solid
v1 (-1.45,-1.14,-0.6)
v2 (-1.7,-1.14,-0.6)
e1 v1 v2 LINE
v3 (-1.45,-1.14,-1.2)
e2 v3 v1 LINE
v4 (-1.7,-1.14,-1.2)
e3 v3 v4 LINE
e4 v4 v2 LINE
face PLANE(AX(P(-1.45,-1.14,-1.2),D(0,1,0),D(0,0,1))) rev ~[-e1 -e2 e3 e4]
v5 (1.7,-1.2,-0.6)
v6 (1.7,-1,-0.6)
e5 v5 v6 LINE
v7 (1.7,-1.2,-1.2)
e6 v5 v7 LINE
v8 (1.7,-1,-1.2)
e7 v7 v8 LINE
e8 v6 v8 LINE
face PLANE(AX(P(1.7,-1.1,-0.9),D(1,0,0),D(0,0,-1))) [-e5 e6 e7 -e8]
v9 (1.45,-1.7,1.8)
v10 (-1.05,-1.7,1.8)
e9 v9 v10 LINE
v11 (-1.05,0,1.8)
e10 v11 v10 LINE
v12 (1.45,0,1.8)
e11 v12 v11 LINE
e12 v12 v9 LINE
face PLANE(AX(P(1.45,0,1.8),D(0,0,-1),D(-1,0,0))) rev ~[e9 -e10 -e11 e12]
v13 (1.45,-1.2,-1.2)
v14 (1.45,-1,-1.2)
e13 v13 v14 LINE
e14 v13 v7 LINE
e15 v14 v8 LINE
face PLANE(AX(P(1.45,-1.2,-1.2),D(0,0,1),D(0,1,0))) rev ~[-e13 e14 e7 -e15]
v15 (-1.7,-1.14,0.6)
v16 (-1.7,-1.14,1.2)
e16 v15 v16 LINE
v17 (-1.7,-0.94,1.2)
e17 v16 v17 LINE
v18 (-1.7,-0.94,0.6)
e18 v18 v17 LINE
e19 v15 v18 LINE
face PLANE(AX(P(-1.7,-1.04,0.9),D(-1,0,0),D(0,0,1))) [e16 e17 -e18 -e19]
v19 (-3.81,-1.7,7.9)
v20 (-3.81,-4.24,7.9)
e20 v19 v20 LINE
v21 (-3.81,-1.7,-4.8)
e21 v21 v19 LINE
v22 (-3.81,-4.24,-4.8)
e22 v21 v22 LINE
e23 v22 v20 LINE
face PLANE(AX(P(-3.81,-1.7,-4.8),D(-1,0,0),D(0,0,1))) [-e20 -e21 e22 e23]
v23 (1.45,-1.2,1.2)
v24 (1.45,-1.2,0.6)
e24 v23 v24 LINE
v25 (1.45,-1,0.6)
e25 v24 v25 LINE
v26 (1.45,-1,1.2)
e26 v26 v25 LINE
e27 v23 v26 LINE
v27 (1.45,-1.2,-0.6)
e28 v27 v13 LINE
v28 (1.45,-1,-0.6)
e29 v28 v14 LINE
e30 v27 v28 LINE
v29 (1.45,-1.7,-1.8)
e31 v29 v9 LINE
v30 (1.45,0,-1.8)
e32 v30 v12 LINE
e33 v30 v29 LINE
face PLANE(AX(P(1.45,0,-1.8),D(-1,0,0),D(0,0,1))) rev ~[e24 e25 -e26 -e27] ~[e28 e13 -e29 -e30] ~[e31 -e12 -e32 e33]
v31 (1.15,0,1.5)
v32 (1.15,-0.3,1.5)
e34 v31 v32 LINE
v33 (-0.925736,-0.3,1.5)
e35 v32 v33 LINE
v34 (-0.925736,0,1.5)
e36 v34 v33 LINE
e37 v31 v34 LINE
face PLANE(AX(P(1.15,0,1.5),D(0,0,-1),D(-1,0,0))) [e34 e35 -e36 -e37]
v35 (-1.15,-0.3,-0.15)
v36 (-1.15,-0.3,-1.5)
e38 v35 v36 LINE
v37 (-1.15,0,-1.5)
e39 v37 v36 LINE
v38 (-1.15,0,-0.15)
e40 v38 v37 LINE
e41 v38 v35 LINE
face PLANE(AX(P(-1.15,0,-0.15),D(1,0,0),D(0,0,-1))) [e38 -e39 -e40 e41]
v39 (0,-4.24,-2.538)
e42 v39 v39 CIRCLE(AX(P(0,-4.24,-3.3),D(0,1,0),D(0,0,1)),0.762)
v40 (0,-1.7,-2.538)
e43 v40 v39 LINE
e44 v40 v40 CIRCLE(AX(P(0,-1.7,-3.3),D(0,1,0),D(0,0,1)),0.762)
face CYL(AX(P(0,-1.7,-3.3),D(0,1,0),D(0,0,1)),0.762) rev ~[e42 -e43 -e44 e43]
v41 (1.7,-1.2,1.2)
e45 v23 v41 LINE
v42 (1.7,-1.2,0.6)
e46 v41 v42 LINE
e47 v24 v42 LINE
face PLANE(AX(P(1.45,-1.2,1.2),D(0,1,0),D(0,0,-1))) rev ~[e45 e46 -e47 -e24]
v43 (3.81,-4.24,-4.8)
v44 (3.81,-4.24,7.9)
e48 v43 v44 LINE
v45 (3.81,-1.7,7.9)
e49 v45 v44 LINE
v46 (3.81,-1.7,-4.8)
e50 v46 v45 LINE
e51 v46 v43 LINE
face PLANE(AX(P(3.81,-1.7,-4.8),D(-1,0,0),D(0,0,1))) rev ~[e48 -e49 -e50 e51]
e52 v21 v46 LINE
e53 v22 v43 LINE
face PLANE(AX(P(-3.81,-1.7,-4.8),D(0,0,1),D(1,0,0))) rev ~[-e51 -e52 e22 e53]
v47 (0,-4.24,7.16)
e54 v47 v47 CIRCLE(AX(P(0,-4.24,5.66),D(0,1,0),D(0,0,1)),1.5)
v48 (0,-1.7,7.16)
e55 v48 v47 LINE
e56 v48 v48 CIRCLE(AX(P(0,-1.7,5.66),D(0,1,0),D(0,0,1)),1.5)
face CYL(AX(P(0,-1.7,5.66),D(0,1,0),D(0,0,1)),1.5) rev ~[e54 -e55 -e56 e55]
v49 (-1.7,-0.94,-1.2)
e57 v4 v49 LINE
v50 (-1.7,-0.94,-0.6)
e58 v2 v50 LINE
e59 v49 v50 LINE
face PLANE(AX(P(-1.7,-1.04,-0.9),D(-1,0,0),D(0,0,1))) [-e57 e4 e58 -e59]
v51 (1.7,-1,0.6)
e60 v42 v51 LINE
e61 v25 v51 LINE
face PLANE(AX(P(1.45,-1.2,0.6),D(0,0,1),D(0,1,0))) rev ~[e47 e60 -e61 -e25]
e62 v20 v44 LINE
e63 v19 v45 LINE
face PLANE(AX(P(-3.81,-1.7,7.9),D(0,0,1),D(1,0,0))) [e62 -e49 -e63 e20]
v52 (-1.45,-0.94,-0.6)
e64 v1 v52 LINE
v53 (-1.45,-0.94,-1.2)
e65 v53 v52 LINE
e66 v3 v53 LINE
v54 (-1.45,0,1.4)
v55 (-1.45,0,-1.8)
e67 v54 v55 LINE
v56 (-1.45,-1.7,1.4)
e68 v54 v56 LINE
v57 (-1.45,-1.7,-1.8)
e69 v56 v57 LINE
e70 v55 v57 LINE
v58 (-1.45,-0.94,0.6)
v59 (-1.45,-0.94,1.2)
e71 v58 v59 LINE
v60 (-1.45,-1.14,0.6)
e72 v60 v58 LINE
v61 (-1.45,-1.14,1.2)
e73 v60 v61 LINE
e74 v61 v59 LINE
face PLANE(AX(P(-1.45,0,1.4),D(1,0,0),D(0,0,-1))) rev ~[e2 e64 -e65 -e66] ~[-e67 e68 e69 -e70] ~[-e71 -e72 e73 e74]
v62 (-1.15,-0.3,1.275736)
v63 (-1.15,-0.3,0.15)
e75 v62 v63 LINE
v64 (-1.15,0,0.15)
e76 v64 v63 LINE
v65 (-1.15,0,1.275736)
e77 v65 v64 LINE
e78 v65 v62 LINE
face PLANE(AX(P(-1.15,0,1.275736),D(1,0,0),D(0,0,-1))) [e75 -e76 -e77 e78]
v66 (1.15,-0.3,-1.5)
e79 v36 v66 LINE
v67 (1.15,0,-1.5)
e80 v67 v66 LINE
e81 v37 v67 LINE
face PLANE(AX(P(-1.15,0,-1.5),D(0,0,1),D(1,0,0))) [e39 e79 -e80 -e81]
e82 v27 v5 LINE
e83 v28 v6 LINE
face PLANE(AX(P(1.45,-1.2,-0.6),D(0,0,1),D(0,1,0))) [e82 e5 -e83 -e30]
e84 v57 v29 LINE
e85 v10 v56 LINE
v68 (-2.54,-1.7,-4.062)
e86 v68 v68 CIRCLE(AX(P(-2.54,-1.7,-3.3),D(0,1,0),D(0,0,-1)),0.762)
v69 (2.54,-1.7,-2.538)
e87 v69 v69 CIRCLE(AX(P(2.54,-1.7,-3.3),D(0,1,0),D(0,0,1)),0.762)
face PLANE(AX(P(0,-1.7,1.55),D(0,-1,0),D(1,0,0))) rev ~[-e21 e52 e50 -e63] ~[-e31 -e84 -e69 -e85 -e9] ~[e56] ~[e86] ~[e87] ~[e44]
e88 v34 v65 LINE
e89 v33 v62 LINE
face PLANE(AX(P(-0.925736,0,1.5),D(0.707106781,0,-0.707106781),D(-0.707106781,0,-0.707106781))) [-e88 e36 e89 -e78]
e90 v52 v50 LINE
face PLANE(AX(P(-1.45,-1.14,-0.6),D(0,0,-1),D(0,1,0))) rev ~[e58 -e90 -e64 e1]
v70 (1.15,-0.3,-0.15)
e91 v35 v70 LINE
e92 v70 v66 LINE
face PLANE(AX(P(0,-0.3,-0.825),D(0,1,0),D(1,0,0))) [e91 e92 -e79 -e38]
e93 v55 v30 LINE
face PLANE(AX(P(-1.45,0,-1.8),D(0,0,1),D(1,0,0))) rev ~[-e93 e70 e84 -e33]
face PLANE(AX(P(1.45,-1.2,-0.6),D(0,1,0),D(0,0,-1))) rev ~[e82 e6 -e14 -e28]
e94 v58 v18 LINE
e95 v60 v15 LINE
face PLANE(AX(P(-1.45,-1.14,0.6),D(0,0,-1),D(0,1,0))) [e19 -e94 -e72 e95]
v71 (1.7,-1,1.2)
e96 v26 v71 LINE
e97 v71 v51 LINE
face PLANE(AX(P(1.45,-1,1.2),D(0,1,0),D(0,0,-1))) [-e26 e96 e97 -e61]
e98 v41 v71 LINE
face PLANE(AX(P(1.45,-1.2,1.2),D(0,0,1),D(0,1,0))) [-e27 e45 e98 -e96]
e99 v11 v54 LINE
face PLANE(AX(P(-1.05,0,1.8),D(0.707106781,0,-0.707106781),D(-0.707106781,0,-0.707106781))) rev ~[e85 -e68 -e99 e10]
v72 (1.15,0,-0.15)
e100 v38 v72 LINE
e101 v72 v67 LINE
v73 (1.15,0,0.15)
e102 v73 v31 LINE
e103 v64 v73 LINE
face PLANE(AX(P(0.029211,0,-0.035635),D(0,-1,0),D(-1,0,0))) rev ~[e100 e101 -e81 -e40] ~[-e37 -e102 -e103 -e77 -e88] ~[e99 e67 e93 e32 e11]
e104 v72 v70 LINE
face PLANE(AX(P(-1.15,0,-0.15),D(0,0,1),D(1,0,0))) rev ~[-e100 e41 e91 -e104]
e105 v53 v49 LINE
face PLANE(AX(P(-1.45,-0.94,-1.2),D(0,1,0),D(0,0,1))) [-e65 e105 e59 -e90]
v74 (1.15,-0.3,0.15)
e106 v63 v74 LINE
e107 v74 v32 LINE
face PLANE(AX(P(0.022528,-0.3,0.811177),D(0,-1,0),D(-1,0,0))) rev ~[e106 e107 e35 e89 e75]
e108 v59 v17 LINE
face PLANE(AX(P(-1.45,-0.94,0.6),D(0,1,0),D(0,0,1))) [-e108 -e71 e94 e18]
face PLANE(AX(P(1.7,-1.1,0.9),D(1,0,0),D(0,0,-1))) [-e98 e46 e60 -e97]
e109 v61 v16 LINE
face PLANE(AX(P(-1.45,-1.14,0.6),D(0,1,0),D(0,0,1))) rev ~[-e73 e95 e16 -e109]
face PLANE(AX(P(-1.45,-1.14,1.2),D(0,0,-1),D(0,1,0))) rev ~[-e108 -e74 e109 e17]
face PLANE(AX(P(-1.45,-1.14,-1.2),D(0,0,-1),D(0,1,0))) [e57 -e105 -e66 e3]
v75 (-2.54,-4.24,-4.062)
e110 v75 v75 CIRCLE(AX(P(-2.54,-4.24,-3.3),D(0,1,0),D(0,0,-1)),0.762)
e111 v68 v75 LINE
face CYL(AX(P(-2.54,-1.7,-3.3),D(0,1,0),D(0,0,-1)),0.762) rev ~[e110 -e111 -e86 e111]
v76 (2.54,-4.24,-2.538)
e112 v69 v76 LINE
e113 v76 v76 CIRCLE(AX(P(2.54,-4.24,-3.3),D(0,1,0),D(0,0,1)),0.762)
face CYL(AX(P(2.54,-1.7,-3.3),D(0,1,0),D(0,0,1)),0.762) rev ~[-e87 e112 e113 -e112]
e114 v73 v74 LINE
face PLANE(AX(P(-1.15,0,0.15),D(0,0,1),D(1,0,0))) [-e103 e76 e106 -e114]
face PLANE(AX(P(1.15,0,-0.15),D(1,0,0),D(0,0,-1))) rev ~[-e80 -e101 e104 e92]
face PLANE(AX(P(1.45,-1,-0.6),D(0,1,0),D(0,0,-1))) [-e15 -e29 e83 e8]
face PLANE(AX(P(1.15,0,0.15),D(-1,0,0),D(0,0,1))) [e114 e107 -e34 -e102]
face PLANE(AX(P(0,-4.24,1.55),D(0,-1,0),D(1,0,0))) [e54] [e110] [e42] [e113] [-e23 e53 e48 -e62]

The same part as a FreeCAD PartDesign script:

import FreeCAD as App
import Part
import Sketcher
from FreeCAD import Vector
Q = App.Units.Quantity


def add_polygon(sketch, points):
    """Adds a closed chain of lines whose ends are joined by coincident constraints."""
    first, n = sketch.GeometryCount, len(points)
    for a, b in zip(points, points[1:] + points[:1]):
        sketch.addGeometry(Part.LineSegment(App.Vector(*a, 0), App.Vector(*b, 0)), False)
    for i in range(n):
        sketch.addConstraint(Sketcher.Constraint("Coincident", first + i, 2, first + (i + 1) % n, 1))

doc = App.newDocument("Part")
body = doc.addObject("PartDesign::Body", "Body")

# Sketch on XZ plane
sketch1 = body.newObject("Sketcher::SketchObject", "Sketch")
sketch1.AttachmentSupport = (doc.getObject("XZ_Plane"), [""])
sketch1.MapMode = "FlatFace"
add_polygon(sketch1, [(1.45, -1.8), (-1.45, -1.8), (-1.45, 1.4), (-1.05, 1.8), (1.45, 1.8)])  # lines 0-4
sketch1.addConstraint([
    Sketcher.Constraint("Horizontal", 0),
    Sketcher.Constraint("Vertical", 1),
    Sketcher.Constraint("Horizontal", 3),
    Sketcher.Constraint("Vertical", 4),
    Sketcher.Constraint("Symmetric", 0, 2, 3, 2, -1, 1),
    Sketcher.Constraint("Angle", 2, Q("45 deg")),
    Sketcher.Constraint("DistanceX", 0, 2, 0, 1, 2.9),
    Sketcher.Constraint("DistanceX", 3, 1, 3, 2, 2.5),
    Sketcher.Constraint("DistanceY", 1, 1, 1, 2, 3.2),
])
pad1 = body.newObject("PartDesign::Pad", "Pad")
pad1.Profile = sketch1
pad1.Length = 1.7

# Sketch on XZ plane
sketch2 = body.newObject("Sketcher::SketchObject", "Sketch001")
sketch2.AttachmentSupport = (doc.getObject("XZ_Plane"), [""])
sketch2.MapMode = "FlatFace"
add_polygon(sketch2, [(-1.15, -1.5), (-1.15, -0.15), (1.15, -0.15), (1.15, -1.5)])  # lines 0-3
add_polygon(sketch2, [(1.15, 0.15), (-1.15, 0.15), (-1.15, 1.275736), (-0.925736, 1.5), (1.15, 1.5)])  # lines 4-8
sketch2.addConstraint([
    Sketcher.Constraint("Vertical", 0),
    Sketcher.Constraint("Horizontal", 1),
    Sketcher.Constraint("Vertical", 2),
    Sketcher.Constraint("Horizontal", 3),
    Sketcher.Constraint("Horizontal", 4),
    Sketcher.Constraint("Vertical", 5),
    Sketcher.Constraint("Horizontal", 7),
    Sketcher.Constraint("Vertical", 8),
    Sketcher.Constraint("Symmetric", 1, 2, 4, 2, -1, 1),
    Sketcher.Constraint("Symmetric", 3, 2, 7, 2, -1, 1),
    Sketcher.Constraint("Vertical", 3, 2, 4, 2),
    Sketcher.Constraint("Angle", 6, Q("45 deg")),
    Sketcher.Constraint("DistanceX", 1, 1, 1, 2, 2.3),
    Sketcher.Constraint("DistanceY", 3, 2, 6, 2, 3.0),
    Sketcher.Constraint("DistanceY", 0, 1, 0, 2, 1.35),
    Sketcher.Constraint("DistanceX", 7, 1, 7, 2, 2.075736),
])
pocket1 = body.newObject("PartDesign::Pocket", "Pocket")
pocket1.Profile = sketch2
pocket1.Length = 0.3
pocket1.Reversed = True

# Sketch on YZ plane
sketch3 = body.newObject("Sketcher::SketchObject", "Sketch002")
sketch3.AttachmentSupport = (doc.getObject("YZ_Plane"), [""])
sketch3.MapMode = "FlatFace"
sketch3.AttachmentOffset = App.Placement(Vector(0, 0, -1.45), App.Rotation())
add_polygon(sketch3, [(-0.94, -1.2), (-1.14, -1.2), (-1.14, -0.6), (-0.94, -0.6)])  # lines 0-3
add_polygon(sketch3, [(-0.94, 0.6), (-1.14, 0.6), (-1.14, 1.2), (-0.94, 1.2)])  # lines 4-7
sketch3.addConstraint([
    Sketcher.Constraint("Horizontal", 0),
    Sketcher.Constraint("Vertical", 1),
    Sketcher.Constraint("Horizontal", 2),
    Sketcher.Constraint("Vertical", 3),
    Sketcher.Constraint("Horizontal", 4),
    Sketcher.Constraint("Vertical", 5),
    Sketcher.Constraint("Horizontal", 6),
    Sketcher.Constraint("Vertical", 7),
    Sketcher.Constraint("Symmetric", 1, 2, 4, 2, -1),
    Sketcher.Constraint("Symmetric", 3, 2, 6, 2, -1),
    Sketcher.Constraint("DistanceX", 0, 2, 0, 1, 0.2),
    Sketcher.Constraint("DistanceY", 1, 1, 1, 2, 0.6),
    Sketcher.Constraint("DistanceY", 0, 2, -1, 1, 1.2),
    Sketcher.Constraint("DistanceX", 0, 2, -1, 1, 1.14),
])
pad2 = body.newObject("PartDesign::Pad", "Pad001")
pad2.Profile = sketch3
pad2.Length = 0.25
pad2.Reversed = True

# Sketch on YZ plane
sketch4 = body.newObject("Sketcher::SketchObject", "Sketch003")
sketch4.AttachmentSupport = (doc.getObject("YZ_Plane"), [""])
sketch4.MapMode = "FlatFace"
sketch4.AttachmentOffset = App.Placement(Vector(0, 0, 1.45), App.Rotation())
add_polygon(sketch4, [(-1, 1.2), (-1.2, 1.2), (-1.2, 0.6), (-1, 0.6)])  # lines 0-3
add_polygon(sketch4, [(-1, -0.6), (-1.2, -0.6), (-1.2, -1.2), (-1, -1.2)])  # lines 4-7
sketch4.addConstraint([
    Sketcher.Constraint("Horizontal", 0),
    Sketcher.Constraint("Vertical", 1),
    Sketcher.Constraint("Horizontal", 2),
    Sketcher.Constraint("Vertical", 3),
    Sketcher.Constraint("Horizontal", 4),
    Sketcher.Constraint("Vertical", 5),
    Sketcher.Constraint("Horizontal", 6),
    Sketcher.Constraint("Vertical", 7),
    Sketcher.Constraint("Symmetric", 1, 2, 4, 2, -1),
    Sketcher.Constraint("Symmetric", 3, 2, 6, 2, -1),
    Sketcher.Constraint("DistanceX", 0, 2, 0, 1, 0.2),
    Sketcher.Constraint("DistanceY", 1, 2, 1, 1, 0.6),
    Sketcher.Constraint("DistanceX", 2, 2, -1, 1, 1.0),
    Sketcher.Constraint("DistanceY", -1, 1, 0, 2, 1.2),
])
pad3 = body.newObject("PartDesign::Pad", "Pad002")
pad3.Profile = sketch4
pad3.Length = 0.25

# Sketch on XZ plane
sketch5 = body.newObject("Sketcher::SketchObject", "Sketch004")
sketch5.AttachmentSupport = (doc.getObject("XZ_Plane"), [""])
sketch5.MapMode = "FlatFace"
sketch5.AttachmentOffset = App.Placement(Vector(0, 0, 1.7), App.Rotation())
add_polygon(sketch5, [(-3.81, 7.9), (-3.81, -4.8), (3.81, -4.8), (3.81, 7.9)])  # lines 0-3
sketch5.addConstraint([
    Sketcher.Constraint("Vertical", 0),
    Sketcher.Constraint("Horizontal", 1),
    Sketcher.Constraint("Vertical", 2),
    Sketcher.Constraint("Horizontal", 3),
    Sketcher.Constraint("DistanceY", 0, 2, 0, 1, 12.7),
    Sketcher.Constraint("DistanceX", 1, 1, 1, 2, 7.62),
    Sketcher.Constraint("DistanceY", 0, 2, -1, 1, 4.8),
    Sketcher.Constraint("DistanceX", 0, 2, -1, 1, 3.81),
])
pad4 = body.newObject("PartDesign::Pad", "Pad003")
pad4.Profile = sketch5
pad4.Length = 2.54

# Sketch on XZ plane
sketch6 = body.newObject("Sketcher::SketchObject", "Sketch005")
sketch6.AttachmentSupport = (doc.getObject("XZ_Plane"), [""])
sketch6.MapMode = "FlatFace"
sketch6.AttachmentOffset = App.Placement(Vector(0, 0, 1.7), App.Rotation())
sketch6.addGeometry(Part.Circle(Vector(0, -3.3, 0), Vector(0, 0, 1), 0.762), False)
sketch6.addConstraint([
    Sketcher.Constraint("PointOnObject", 0, 3, -2),
    Sketcher.Constraint("Diameter", 0, 1.524),
    Sketcher.Constraint("DistanceY", 0, 3, -1, 1, 3.3),
])
pocket2 = body.newObject("PartDesign::Pocket", "Pocket001")
pocket2.Profile = sketch6
pocket2.Type = "UpToFirst"
pocket2.Reversed = True

# Sketch on XZ plane
sketch7 = body.newObject("Sketcher::SketchObject", "Sketch006")
sketch7.AttachmentSupport = (doc.getObject("XZ_Plane"), [""])
sketch7.MapMode = "FlatFace"
sketch7.AttachmentOffset = App.Placement(Vector(0, 0, 1.7), App.Rotation())
sketch7.addGeometry(Part.Circle(Vector(2.54, -3.3, 0), Vector(0, 0, 1), 0.762), False)
sketch7.addConstraint([
    Sketcher.Constraint("Diameter", 0, 1.524),
    Sketcher.Constraint("DistanceY", 0, 3, -1, 1, 3.3),
    Sketcher.Constraint("DistanceX", -1, 1, 0, 3, 2.54),
])
pocket3 = body.newObject("PartDesign::Pocket", "Pocket002")
pocket3.Profile = sketch7
pocket3.Type = "UpToFirst"
pocket3.Reversed = True

# Sketch on XZ plane
sketch8 = body.newObject("Sketcher::SketchObject", "Sketch007")
sketch8.AttachmentSupport = (doc.getObject("XZ_Plane"), [""])
sketch8.MapMode = "FlatFace"
sketch8.AttachmentOffset = App.Placement(Vector(0, 0, 1.7), App.Rotation())
sketch8.addGeometry(Part.Circle(Vector(-2.54, -3.3, 0), Vector(0, 0, 1), 0.762), False)
sketch8.addConstraint([
    Sketcher.Constraint("Diameter", 0, 1.524),
    Sketcher.Constraint("DistanceY", 0, 3, -1, 1, 3.3),
    Sketcher.Constraint("DistanceX", 0, 3, -1, 1, 2.54),
])
pocket4 = body.newObject("PartDesign::Pocket", "Pocket003")
pocket4.Profile = sketch8
pocket4.Type = "UpToFirst"
pocket4.Reversed = True

# Sketch on XZ plane
sketch9 = body.newObject("Sketcher::SketchObject", "Sketch008")
sketch9.AttachmentSupport = (doc.getObject("XZ_Plane"), [""])
sketch9.MapMode = "FlatFace"
sketch9.AttachmentOffset = App.Placement(Vector(0, 0, 1.7), App.Rotation())
sketch9.addGeometry(Part.Circle(Vector(0, 5.66, 0), Vector(0, 0, 1), 1.5), False)
sketch9.addConstraint([
    Sketcher.Constraint("PointOnObject", 0, 3, -2),
    Sketcher.Constraint("Diameter", 0, 3.0),
    Sketcher.Constraint("DistanceY", -1, 1, 0, 3, 5.66),
])
pocket5 = body.newObject("PartDesign::Pocket", "Pocket004")
pocket5.Profile = sketch9
pocket5.Type = "UpToFirst"
pocket5.Reversed = True

doc.recompute()
